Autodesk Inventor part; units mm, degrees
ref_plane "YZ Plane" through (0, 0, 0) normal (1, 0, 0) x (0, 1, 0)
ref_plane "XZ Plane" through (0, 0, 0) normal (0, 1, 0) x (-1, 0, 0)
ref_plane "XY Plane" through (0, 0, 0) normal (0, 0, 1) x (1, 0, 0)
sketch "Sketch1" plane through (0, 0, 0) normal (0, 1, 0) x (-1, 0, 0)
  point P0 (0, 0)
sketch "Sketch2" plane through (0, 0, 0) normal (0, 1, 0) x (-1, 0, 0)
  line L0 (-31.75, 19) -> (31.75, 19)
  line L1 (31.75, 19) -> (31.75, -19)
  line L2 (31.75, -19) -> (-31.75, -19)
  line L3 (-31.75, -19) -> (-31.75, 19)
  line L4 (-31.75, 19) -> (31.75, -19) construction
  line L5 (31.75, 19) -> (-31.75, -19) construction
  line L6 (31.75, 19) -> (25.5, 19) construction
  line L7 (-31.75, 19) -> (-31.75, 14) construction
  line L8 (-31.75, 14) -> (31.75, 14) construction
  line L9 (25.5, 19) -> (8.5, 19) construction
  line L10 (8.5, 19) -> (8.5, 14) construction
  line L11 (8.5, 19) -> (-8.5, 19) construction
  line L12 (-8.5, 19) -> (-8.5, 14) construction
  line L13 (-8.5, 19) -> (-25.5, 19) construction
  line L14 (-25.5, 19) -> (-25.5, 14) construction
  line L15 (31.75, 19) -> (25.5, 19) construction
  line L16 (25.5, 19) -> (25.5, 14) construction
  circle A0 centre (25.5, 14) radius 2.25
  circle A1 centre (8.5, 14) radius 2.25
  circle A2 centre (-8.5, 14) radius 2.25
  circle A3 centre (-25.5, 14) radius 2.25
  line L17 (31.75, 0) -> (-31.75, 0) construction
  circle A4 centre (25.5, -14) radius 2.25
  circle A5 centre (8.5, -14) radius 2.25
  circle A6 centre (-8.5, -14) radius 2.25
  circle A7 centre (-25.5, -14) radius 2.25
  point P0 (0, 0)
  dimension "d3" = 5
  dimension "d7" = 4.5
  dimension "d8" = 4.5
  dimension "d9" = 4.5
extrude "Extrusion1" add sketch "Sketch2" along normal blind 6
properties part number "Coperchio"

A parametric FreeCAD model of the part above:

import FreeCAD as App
import Part
import Sketcher
Q = App.Units.Quantity


def add_polygon(sketch, points):
    """Adds a closed chain of lines whose ends are joined by coincident constraints."""
    first, n = sketch.GeometryCount, len(points)
    for a, b in zip(points, points[1:] + points[:1]):
        sketch.addGeometry(Part.LineSegment(App.Vector(*a, 0), App.Vector(*b, 0)), False)
    for i in range(n):
        sketch.addConstraint(Sketcher.Constraint("Coincident", first + i, 2, first + (i + 1) % n, 1))

doc = App.newDocument("Part")
params = doc.addObject("Spreadsheet::Sheet", "Params")
for row, (alias, value) in enumerate([
    ("sketch1_diameter", "4.5 mm"),
    ("sketch1_height", "38 mm"),
    ("sketch1_width", "63.5 mm"),
    ("pad1_length", "6 mm"),
], start=1):
    params.set(f"A{row}", alias)
    params.set(f"B{row}", "=" + value)
    params.setAlias(f"B{row}", alias)

body = doc.addObject("PartDesign::Body", "Body")

sketch1 = body.newObject("Sketcher::SketchObject", "Sketch")
sketch1.AttachmentSupport = (doc.getObject("XZ_Plane"), [""])
sketch1.MapMode = "FlatFace"
add_polygon(sketch1, [(-31.75, 19), (31.75, 19), (31.75, -19), (-31.75, -19)])
sketch1.addGeometry(Part.Circle(App.Vector(25.5, -14, 0), App.Vector(0, 0, 1), 2.25), False)
sketch1.addGeometry(Part.Circle(App.Vector(8.5, -14, 0), App.Vector(0, 0, 1), 2.25), False)
sketch1.addGeometry(Part.Circle(App.Vector(-8.5, -14, 0), App.Vector(0, 0, 1), 2.25), False)
sketch1.addGeometry(Part.Circle(App.Vector(-25.5, -14, 0), App.Vector(0, 0, 1), 2.25), False)
sketch1.addGeometry(Part.Circle(App.Vector(25.5, 14, 0), App.Vector(0, 0, 1), 2.25), False)
sketch1.addGeometry(Part.Circle(App.Vector(8.5, 14, 0), App.Vector(0, 0, 1), 2.25), False)
sketch1.addGeometry(Part.Circle(App.Vector(-8.5, 14, 0), App.Vector(0, 0, 1), 2.25), False)
sketch1.addGeometry(Part.Circle(App.Vector(-25.5, 14, 0), App.Vector(0, 0, 1), 2.25), False)
sketch1.addConstraint([
    Sketcher.Constraint("Horizontal", 0),
    Sketcher.Constraint("Vertical", 1),
    Sketcher.Constraint("Horizontal", 2),
    Sketcher.Constraint("Vertical", 3),
    Sketcher.Constraint("Equal", 4, 5),
    Sketcher.Constraint("Equal", 5, 6),
    Sketcher.Constraint("Equal", 6, 7),
    Sketcher.Constraint("Equal", 7, 8),
    Sketcher.Constraint("Equal", 8, 9),
    Sketcher.Constraint("Equal", 9, 10),
    Sketcher.Constraint("Equal", 10, 11),
    Sketcher.Constraint("Symmetric", 7, 3, 8, 3, -1, 1),
    Sketcher.Constraint("Symmetric", 6, 3, 9, 3, -1, 1),
    Sketcher.Constraint("Symmetric", 5, 3, 10, 3, -1, 1),
    Sketcher.Constraint("Symmetric", 4, 3, 11, 3, -1, 1),
    Sketcher.Constraint("Symmetric", 0, 2, 2, 2, -1, 1),
    Sketcher.Constraint("Symmetric", 5, 3, 6, 3, -2),
    Sketcher.Constraint("Symmetric", 4, 3, 7, 3, -2),
    Sketcher.Constraint("Horizontal", 4, 3, 5, 3),
    Sketcher.Constraint("Diameter", 4, Q("4.5 mm")),
    Sketcher.Constraint("DistanceY", 8, 3, 0, 2, Q("5 mm")),
    Sketcher.Constraint("DistanceY", 1, 2, 1, 1, Q("38 mm")),
    Sketcher.Constraint("DistanceX", 0, 1, 0, 2, Q("63.5 mm")),
    Sketcher.Constraint("DistanceX", 5, 3, 4, 3, Q("17 mm")),
    Sketcher.Constraint("DistanceX", 6, 3, 5, 3, Q("17 mm")),
])
sketch1.setExpression("Constraints[23]", "Params.sketch1_diameter")
sketch1.setExpression("Constraints[25]", "Params.sketch1_height")
sketch1.setExpression("Constraints[26]", "Params.sketch1_width")
pad1 = body.newObject("PartDesign::Pad", "Pad")
pad1.Profile = sketch1
pad1.setExpression("Length", "Params.pad1_length")
pad1.Reversed = True

doc.recompute()
